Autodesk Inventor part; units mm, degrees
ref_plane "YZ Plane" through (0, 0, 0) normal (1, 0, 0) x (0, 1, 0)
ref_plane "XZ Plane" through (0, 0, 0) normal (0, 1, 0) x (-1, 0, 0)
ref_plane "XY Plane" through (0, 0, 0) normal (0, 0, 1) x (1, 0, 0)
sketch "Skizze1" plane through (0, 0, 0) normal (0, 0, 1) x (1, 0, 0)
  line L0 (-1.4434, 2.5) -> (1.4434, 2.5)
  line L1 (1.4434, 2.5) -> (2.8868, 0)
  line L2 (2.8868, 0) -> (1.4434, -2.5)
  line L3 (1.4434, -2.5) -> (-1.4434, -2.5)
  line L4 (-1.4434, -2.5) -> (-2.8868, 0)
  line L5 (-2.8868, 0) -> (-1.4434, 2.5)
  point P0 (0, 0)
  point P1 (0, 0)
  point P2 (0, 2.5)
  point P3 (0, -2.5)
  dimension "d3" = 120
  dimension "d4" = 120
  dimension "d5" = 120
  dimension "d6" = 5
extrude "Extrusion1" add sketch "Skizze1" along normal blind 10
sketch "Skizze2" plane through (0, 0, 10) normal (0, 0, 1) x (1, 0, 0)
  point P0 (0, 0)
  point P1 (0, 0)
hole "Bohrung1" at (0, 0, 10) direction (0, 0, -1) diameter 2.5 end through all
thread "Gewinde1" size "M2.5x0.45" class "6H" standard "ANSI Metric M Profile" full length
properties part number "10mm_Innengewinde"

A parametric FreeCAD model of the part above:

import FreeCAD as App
import Part
import Sketcher
Q = App.Units.Quantity

doc = App.newDocument("Part")
body = doc.addObject("PartDesign::Body", "Body")

sketch1 = doc.addObject("Sketcher::SketchObject", "Sketch")
body.addObject(sketch1)
sketch1.AttachmentSupport = (doc.XY_Plane, [""])
sketch1.MapMode = "FlatFace"
sketch1.addGeometry([
    Part.LineSegment(App.Vector(1.4, 2.5, 0), App.Vector(-1.4, 2.5, 0)),
    Part.LineSegment(App.Vector(-1.4, 2.5, 0), App.Vector(-2.9, 0, 0)),
    Part.LineSegment(App.Vector(-2.9, 0, 0), App.Vector(-1.4, -2.5, 0)),
    Part.LineSegment(App.Vector(-1.4, -2.5, 0), App.Vector(1.4, -2.5, 0)),
    Part.LineSegment(App.Vector(1.4, -2.5, 0), App.Vector(2.9, 0, 0)),
    Part.LineSegment(App.Vector(2.9, 0, 0), App.Vector(1.4, 2.5, 0)),
], False)
sketch1.addConstraint([
    Sketcher.Constraint("Coincident", 0, 2, 1, 1),
    Sketcher.Constraint("Coincident", 1, 2, 2, 1),
    Sketcher.Constraint("Coincident", 2, 2, 3, 1),
    Sketcher.Constraint("Coincident", 3, 2, 4, 1),
    Sketcher.Constraint("Coincident", 4, 2, 5, 1),
    Sketcher.Constraint("Coincident", 5, 2, 0, 1),
    Sketcher.Constraint("Horizontal", 0),
    Sketcher.Constraint("Horizontal", 3),
    Sketcher.Constraint("Symmetric", 0, 2, 3, 2, -1, 1),
    Sketcher.Constraint("Symmetric", 1, 2, 4, 2, -1, 1),
    Sketcher.Constraint("PointOnObject", 1, 2, -1),
    Sketcher.Constraint("Parallel", 2, 5),
    Sketcher.Constraint("Vertical", 0, 2, 2, 2),
    Sketcher.Constraint("Angle", 1, Q("-120.0004 deg")),
    Sketcher.Constraint("DistanceY", 2, 2, 0, 2, 5.0),
    Sketcher.Constraint("DistanceX", 0, 2, 0, 1, 2.8868),
])
pad1 = doc.addObject("PartDesign::Pad", "Pad")
body.addObject(pad1)
pad1.Profile = sketch1
pad1.Length = 10

sketch2 = doc.addObject("Sketcher::SketchObject", "Sketch001")
body.addObject(sketch2)
sketch2.AttachmentSupport = (doc.XY_Plane, [""])
sketch2.MapMode = "FlatFace"
sketch2.AttachmentOffset = App.Placement(App.Vector(0, 0, 10), App.Rotation())
sketch2.addGeometry(Part.Circle(App.Vector(0, 0, 0), App.Vector(0, 0, 1), 1.2), False)
sketch2.addConstraint([
    Sketcher.Constraint("Coincident", 0, 3, -1, 1),
    Sketcher.Constraint("Diameter", 0, 2.5),
])
doc.recompute()
hole = doc.addObject("PartDesign::Hole", "Hole")
body.addObject(hole)
hole.Profile = sketch2
hole.ThreadType = "None"
hole.Diameter = 2.5
hole.DepthType = "ThroughAll"

doc.recompute()
